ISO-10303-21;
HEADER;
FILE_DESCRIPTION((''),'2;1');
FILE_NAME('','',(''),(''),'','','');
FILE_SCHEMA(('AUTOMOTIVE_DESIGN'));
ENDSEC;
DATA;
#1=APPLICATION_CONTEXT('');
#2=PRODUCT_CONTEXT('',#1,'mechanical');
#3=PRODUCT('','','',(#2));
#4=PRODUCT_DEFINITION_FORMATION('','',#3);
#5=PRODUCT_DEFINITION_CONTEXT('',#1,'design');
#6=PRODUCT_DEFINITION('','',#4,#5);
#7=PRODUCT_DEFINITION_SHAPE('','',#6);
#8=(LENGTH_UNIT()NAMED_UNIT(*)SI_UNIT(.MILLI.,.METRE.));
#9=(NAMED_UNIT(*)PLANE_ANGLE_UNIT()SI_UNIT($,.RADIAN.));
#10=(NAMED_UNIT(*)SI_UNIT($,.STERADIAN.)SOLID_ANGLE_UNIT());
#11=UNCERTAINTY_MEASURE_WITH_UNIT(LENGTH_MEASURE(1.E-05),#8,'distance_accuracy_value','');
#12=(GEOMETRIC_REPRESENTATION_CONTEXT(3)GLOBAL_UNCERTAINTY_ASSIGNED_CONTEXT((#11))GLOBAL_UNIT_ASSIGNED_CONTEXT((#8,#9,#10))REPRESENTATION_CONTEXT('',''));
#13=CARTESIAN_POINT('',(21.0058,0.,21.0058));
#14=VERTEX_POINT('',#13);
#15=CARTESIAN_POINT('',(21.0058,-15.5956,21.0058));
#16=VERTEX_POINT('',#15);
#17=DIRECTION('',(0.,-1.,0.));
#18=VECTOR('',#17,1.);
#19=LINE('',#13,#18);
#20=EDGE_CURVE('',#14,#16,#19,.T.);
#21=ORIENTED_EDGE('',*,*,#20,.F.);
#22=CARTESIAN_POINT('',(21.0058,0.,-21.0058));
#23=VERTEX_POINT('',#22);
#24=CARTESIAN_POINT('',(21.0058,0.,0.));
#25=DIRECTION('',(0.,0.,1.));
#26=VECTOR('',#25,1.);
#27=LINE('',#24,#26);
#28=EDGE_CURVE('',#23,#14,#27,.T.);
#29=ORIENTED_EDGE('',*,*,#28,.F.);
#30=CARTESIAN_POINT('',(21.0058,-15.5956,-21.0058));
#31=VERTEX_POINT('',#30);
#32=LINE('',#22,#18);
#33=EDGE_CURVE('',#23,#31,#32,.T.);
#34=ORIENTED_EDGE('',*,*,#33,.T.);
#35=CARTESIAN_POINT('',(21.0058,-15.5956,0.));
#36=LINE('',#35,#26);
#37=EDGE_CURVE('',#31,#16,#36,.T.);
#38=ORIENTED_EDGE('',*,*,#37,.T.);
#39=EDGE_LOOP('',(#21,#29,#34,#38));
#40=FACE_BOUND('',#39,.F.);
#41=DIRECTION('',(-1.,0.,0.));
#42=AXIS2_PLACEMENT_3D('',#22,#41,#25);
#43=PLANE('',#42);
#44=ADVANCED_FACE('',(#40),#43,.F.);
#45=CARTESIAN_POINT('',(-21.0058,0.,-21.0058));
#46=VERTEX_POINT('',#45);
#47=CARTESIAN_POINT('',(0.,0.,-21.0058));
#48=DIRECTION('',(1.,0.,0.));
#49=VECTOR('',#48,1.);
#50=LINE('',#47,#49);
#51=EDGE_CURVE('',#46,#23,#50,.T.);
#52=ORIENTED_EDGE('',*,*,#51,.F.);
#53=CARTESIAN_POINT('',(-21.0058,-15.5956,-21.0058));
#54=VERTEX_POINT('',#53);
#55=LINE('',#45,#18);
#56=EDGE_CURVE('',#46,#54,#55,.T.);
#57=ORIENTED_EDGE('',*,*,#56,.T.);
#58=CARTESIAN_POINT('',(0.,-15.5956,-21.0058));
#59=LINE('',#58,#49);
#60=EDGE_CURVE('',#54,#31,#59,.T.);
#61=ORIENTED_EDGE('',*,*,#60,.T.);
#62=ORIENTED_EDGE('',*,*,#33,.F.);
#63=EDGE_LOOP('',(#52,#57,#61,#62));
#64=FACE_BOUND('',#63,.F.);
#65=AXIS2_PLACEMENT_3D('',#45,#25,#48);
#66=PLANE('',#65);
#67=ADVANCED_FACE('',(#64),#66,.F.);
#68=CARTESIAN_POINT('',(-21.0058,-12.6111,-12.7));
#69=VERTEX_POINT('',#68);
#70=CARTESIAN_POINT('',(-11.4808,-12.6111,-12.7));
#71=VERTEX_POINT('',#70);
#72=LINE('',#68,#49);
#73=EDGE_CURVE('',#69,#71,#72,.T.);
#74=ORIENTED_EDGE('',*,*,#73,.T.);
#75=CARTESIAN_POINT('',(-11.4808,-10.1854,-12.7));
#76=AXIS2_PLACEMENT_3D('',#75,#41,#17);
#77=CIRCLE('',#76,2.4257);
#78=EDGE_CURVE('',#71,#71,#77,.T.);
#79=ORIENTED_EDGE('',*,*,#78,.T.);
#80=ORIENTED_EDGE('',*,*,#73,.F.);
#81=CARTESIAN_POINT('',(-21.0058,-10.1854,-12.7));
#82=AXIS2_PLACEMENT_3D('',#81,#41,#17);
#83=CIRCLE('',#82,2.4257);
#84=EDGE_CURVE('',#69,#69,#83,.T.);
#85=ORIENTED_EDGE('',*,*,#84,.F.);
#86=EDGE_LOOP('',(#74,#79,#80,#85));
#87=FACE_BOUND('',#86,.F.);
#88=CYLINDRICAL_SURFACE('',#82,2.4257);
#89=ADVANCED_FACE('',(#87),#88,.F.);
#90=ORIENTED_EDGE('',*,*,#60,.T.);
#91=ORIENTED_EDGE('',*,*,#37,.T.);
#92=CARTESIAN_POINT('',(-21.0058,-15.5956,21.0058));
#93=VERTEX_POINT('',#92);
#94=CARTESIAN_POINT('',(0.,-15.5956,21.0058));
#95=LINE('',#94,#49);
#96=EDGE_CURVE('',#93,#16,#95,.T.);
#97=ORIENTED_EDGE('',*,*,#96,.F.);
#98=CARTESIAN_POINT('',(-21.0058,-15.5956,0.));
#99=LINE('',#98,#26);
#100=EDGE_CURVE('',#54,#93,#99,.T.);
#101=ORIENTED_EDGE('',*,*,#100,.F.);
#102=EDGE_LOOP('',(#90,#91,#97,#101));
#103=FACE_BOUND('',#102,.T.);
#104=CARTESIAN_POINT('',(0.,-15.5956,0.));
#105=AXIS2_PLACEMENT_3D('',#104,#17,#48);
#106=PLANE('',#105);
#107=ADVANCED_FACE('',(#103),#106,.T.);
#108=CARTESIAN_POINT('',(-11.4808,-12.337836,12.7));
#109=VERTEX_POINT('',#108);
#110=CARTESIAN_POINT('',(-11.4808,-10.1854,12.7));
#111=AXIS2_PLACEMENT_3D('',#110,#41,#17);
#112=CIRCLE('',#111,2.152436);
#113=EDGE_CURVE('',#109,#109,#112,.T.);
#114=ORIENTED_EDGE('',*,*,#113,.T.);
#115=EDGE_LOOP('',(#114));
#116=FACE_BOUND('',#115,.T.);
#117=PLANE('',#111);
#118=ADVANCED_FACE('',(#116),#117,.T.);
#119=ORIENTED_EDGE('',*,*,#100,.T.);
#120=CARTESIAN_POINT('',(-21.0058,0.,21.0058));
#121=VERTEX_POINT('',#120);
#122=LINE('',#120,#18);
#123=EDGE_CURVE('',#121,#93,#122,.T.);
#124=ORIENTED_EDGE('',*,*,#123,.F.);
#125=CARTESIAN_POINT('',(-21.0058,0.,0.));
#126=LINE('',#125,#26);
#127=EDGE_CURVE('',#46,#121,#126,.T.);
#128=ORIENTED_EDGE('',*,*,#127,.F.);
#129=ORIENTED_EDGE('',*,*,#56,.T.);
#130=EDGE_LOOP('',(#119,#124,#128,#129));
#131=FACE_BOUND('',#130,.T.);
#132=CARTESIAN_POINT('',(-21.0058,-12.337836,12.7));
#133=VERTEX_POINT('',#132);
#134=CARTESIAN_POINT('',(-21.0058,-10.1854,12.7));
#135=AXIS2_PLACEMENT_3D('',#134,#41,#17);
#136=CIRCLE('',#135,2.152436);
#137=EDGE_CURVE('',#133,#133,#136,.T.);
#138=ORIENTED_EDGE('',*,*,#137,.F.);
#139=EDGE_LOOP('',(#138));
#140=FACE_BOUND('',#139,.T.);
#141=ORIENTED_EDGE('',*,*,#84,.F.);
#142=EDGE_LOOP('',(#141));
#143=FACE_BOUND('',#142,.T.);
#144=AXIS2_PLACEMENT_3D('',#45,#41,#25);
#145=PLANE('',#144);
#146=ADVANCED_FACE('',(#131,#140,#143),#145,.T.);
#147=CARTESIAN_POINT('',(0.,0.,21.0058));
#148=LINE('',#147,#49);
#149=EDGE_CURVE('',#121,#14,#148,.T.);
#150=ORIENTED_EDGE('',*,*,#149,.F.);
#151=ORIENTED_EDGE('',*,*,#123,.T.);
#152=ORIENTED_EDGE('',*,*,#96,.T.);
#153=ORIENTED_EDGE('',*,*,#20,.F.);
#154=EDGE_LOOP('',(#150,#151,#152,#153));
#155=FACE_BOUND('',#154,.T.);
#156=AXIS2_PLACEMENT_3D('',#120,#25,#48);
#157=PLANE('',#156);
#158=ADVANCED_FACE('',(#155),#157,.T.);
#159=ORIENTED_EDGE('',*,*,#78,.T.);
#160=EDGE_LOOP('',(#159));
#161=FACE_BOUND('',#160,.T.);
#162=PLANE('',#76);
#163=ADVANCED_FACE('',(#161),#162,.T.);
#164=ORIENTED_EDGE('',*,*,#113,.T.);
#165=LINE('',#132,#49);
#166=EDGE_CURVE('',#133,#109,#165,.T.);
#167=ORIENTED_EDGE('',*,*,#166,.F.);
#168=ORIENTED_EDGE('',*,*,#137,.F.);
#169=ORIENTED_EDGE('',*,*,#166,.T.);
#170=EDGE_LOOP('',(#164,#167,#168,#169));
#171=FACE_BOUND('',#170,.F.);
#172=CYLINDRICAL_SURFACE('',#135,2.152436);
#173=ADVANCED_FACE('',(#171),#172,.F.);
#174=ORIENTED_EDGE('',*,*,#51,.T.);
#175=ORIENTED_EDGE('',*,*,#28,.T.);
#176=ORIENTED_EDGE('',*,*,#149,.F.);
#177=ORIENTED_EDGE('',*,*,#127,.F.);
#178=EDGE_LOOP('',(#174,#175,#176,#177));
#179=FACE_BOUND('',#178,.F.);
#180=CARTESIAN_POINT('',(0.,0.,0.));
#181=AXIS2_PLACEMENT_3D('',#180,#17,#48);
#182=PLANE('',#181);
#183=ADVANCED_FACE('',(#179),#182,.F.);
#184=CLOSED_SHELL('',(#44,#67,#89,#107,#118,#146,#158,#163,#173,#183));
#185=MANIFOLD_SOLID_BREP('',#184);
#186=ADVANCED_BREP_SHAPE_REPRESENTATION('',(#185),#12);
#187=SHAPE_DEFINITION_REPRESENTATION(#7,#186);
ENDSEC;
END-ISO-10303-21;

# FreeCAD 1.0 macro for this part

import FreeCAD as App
import Part
import Sketcher

V = App.Vector
Q = App.Units.Quantity


def add_polygon(sketch, points):
    """Adds a closed chain of lines whose ends are joined by coincident constraints."""
    first, n = sketch.GeometryCount, len(points)
    for a, b in zip(points, points[1:] + points[:1]):
        sketch.addGeometry(Part.LineSegment(App.Vector(*a, 0), App.Vector(*b, 0)), False)
    for i in range(n):
        sketch.addConstraint(Sketcher.Constraint("Coincident", first + i, 2, first + (i + 1) % n, 1))

doc = App.newDocument("Part")
body = doc.addObject("PartDesign::Body", "Body")

# Sketch on XZ plane
sketch1 = doc.addObject("Sketcher::SketchObject", "Sketch")
body.addObject(sketch1)
sketch1.AttachmentSupport = (doc.XZ_Plane, [""])
sketch1.MapMode = "FlatFace"
add_polygon(sketch1, [(-21, 21), (-21, -21), (21, -21), (21, 21)])  # lines 0-3
sketch1.addConstraint([
    Sketcher.Constraint("Vertical", 0),
    Sketcher.Constraint("Horizontal", 1),
    Sketcher.Constraint("Vertical", 2),
    Sketcher.Constraint("Horizontal", 3),
    Sketcher.Constraint("Symmetric", 0, 2, 2, 2, -1, 1),
    Sketcher.Constraint("Equal", 3, 0),
    Sketcher.Constraint("DistanceX", 1, 1, 1, 2, Q("1.654 in")),
])
pad1 = doc.addObject("PartDesign::Pad", "Pad")
body.addObject(pad1)
pad1.Profile = sketch1
pad1.Length = Q("0.614 in")

# Sketch on YZ plane
sketch2 = doc.addObject("Sketcher::SketchObject", "Sketch001")
body.addObject(sketch2)
sketch2.AttachmentSupport = (doc.YZ_Plane, [""])
sketch2.MapMode = "FlatFace"
sketch2.AttachmentOffset = App.Placement(V(0, 0, -0.827 * 25.4), App.Rotation())
sketch2.addGeometry([
    Part.Circle(V(-10.2, 12.7, 0), V(0, 0, 1), 2.2),
    Part.Circle(V(-10.2, -12.7, 0), V(0, 0, 1), 2.4),
], False)
sketch2.addConstraint([
    Sketcher.Constraint("Symmetric", 0, 3, 1, 3, -1),
    Sketcher.Constraint("Diameter", 1, Q("0.191 in")),
    Sketcher.Constraint("DistanceY", 1, 3, 0, 3, Q("1 in")),
    Sketcher.Constraint("Diameter", 0, 4.304872),
    Sketcher.Constraint("DistanceX", 0, 3, -1, 1, Q("0.401 in")),
])
pocket1 = doc.addObject("PartDesign::Pocket", "Pocket")
body.addObject(pocket1)
pocket1.Profile = sketch2
pocket1.Length = Q("0.375 in")
pocket1.Reversed = True

doc.recompute()
